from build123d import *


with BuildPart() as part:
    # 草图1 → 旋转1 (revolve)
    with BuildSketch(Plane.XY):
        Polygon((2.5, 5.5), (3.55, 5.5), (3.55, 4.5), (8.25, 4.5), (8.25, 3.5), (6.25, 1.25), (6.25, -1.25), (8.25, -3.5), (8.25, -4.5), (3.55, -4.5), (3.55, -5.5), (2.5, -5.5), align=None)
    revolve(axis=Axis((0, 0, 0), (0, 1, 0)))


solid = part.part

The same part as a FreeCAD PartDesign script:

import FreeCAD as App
import Part
import Sketcher

V = App.Vector

doc = App.newDocument("Part")
body = doc.addObject("PartDesign::Body", "Body")

# Sketch on XY plane
sketch1 = body.newObject("Sketcher::SketchObject", "Sketch")
sketch1.AttachmentSupport = (doc.getObject("XY_Plane"), [""])
sketch1.MapMode = "FlatFace"
sketch1.addGeometry([
    Part.LineSegment(V(3.55, 5.5, 0), V(2.5, 5.5, 0)),  # 0
    Part.LineSegment(V(2.5, 5.5, 0), V(2.5, -5.5, 0)),  # 1
    Part.LineSegment(V(2.5, -5.5, 0), V(3.55, -5.5, 0)),  # 2
    Part.LineSegment(V(3.55, -5.5, 0), V(3.55, -4.5, 0)),  # 3
    Part.LineSegment(V(3.55, -4.5, 0), V(8.25, -4.5, 0)),  # 4
    Part.LineSegment(V(8.25, -4.5, 0), V(8.25, -3.5, 0)),  # 5
    Part.LineSegment(V(8.25, -3.5, 0), V(6.25, -1.25, 0)),  # 6
    Part.LineSegment(V(6.25, -1.25, 0), V(6.25, 1.25, 0)),  # 7
    Part.LineSegment(V(6.25, 1.25, 0), V(8.25, 3.5, 0)),  # 8
    Part.LineSegment(V(8.25, 3.5, 0), V(8.25, 4.5, 0)),  # 9
    Part.LineSegment(V(8.25, 4.5, 0), V(3.55, 4.5, 0)),  # 10
    Part.LineSegment(V(3.55, 4.5, 0), V(3.55, 5.5, 0)),  # 11
], False)
sketch1.addConstraint([
    Sketcher.Constraint("Coincident", 0, 2, 1, 1),
    Sketcher.Constraint("Coincident", 1, 2, 2, 1),
    Sketcher.Constraint("Coincident", 2, 2, 3, 1),
    Sketcher.Constraint("Coincident", 3, 2, 4, 1),
    Sketcher.Constraint("Coincident", 4, 2, 5, 1),
    Sketcher.Constraint("Coincident", 5, 2, 6, 1),
    Sketcher.Constraint("Coincident", 6, 2, 7, 1),
    Sketcher.Constraint("Coincident", 7, 2, 8, 1),
    Sketcher.Constraint("Coincident", 8, 2, 9, 1),
    Sketcher.Constraint("Coincident", 9, 2, 10, 1),
    Sketcher.Constraint("Coincident", 10, 2, 11, 1),
    Sketcher.Constraint("Coincident", 11, 2, 0, 1),
    Sketcher.Constraint("Horizontal", 0),
    Sketcher.Constraint("Vertical", 1),
    Sketcher.Constraint("Horizontal", 2),
    Sketcher.Constraint("Vertical", 3),
    Sketcher.Constraint("Horizontal", 4),
    Sketcher.Constraint("Vertical", 5),
    Sketcher.Constraint("Vertical", 7),
    Sketcher.Constraint("Vertical", 9),
    Sketcher.Constraint("Horizontal", 10),
    Sketcher.Constraint("Vertical", 11),
    Sketcher.Constraint("Symmetric", 5, 2, 8, 2, -1),
    Sketcher.Constraint("Symmetric", 3, 2, 10, 2, -1),
    Sketcher.Constraint("Equal", 3, 5),
    Sketcher.Constraint("Equal", 9, 11),
    Sketcher.Constraint("Equal", 6, 8),
    Sketcher.Constraint("DistanceY", 1, 2, 1, 1, 11.0),
    Sketcher.Constraint("DistanceY", 3, 1, 3, 2, 1.0),
    Sketcher.Constraint("DistanceX", 4, 1, 4, 2, 4.7),
    Sketcher.Constraint("DistanceY", 7, 1, 7, 2, 2.5),
    Sketcher.Constraint("DistanceX", 6, 2, 5, 2, 2.0),
    Sketcher.Constraint("DistanceX", 0, 2, 0, 1, 1.05),
    Sketcher.Constraint("DistanceX", -1, 1, 0, 2, 2.5),
])
revolution = body.newObject("PartDesign::Revolution", "Revolution")
revolution.Profile = sketch1
revolution.ReferenceAxis = (sketch1, ["V_Axis"])
revolution.Angle = 360

doc.recompute()
